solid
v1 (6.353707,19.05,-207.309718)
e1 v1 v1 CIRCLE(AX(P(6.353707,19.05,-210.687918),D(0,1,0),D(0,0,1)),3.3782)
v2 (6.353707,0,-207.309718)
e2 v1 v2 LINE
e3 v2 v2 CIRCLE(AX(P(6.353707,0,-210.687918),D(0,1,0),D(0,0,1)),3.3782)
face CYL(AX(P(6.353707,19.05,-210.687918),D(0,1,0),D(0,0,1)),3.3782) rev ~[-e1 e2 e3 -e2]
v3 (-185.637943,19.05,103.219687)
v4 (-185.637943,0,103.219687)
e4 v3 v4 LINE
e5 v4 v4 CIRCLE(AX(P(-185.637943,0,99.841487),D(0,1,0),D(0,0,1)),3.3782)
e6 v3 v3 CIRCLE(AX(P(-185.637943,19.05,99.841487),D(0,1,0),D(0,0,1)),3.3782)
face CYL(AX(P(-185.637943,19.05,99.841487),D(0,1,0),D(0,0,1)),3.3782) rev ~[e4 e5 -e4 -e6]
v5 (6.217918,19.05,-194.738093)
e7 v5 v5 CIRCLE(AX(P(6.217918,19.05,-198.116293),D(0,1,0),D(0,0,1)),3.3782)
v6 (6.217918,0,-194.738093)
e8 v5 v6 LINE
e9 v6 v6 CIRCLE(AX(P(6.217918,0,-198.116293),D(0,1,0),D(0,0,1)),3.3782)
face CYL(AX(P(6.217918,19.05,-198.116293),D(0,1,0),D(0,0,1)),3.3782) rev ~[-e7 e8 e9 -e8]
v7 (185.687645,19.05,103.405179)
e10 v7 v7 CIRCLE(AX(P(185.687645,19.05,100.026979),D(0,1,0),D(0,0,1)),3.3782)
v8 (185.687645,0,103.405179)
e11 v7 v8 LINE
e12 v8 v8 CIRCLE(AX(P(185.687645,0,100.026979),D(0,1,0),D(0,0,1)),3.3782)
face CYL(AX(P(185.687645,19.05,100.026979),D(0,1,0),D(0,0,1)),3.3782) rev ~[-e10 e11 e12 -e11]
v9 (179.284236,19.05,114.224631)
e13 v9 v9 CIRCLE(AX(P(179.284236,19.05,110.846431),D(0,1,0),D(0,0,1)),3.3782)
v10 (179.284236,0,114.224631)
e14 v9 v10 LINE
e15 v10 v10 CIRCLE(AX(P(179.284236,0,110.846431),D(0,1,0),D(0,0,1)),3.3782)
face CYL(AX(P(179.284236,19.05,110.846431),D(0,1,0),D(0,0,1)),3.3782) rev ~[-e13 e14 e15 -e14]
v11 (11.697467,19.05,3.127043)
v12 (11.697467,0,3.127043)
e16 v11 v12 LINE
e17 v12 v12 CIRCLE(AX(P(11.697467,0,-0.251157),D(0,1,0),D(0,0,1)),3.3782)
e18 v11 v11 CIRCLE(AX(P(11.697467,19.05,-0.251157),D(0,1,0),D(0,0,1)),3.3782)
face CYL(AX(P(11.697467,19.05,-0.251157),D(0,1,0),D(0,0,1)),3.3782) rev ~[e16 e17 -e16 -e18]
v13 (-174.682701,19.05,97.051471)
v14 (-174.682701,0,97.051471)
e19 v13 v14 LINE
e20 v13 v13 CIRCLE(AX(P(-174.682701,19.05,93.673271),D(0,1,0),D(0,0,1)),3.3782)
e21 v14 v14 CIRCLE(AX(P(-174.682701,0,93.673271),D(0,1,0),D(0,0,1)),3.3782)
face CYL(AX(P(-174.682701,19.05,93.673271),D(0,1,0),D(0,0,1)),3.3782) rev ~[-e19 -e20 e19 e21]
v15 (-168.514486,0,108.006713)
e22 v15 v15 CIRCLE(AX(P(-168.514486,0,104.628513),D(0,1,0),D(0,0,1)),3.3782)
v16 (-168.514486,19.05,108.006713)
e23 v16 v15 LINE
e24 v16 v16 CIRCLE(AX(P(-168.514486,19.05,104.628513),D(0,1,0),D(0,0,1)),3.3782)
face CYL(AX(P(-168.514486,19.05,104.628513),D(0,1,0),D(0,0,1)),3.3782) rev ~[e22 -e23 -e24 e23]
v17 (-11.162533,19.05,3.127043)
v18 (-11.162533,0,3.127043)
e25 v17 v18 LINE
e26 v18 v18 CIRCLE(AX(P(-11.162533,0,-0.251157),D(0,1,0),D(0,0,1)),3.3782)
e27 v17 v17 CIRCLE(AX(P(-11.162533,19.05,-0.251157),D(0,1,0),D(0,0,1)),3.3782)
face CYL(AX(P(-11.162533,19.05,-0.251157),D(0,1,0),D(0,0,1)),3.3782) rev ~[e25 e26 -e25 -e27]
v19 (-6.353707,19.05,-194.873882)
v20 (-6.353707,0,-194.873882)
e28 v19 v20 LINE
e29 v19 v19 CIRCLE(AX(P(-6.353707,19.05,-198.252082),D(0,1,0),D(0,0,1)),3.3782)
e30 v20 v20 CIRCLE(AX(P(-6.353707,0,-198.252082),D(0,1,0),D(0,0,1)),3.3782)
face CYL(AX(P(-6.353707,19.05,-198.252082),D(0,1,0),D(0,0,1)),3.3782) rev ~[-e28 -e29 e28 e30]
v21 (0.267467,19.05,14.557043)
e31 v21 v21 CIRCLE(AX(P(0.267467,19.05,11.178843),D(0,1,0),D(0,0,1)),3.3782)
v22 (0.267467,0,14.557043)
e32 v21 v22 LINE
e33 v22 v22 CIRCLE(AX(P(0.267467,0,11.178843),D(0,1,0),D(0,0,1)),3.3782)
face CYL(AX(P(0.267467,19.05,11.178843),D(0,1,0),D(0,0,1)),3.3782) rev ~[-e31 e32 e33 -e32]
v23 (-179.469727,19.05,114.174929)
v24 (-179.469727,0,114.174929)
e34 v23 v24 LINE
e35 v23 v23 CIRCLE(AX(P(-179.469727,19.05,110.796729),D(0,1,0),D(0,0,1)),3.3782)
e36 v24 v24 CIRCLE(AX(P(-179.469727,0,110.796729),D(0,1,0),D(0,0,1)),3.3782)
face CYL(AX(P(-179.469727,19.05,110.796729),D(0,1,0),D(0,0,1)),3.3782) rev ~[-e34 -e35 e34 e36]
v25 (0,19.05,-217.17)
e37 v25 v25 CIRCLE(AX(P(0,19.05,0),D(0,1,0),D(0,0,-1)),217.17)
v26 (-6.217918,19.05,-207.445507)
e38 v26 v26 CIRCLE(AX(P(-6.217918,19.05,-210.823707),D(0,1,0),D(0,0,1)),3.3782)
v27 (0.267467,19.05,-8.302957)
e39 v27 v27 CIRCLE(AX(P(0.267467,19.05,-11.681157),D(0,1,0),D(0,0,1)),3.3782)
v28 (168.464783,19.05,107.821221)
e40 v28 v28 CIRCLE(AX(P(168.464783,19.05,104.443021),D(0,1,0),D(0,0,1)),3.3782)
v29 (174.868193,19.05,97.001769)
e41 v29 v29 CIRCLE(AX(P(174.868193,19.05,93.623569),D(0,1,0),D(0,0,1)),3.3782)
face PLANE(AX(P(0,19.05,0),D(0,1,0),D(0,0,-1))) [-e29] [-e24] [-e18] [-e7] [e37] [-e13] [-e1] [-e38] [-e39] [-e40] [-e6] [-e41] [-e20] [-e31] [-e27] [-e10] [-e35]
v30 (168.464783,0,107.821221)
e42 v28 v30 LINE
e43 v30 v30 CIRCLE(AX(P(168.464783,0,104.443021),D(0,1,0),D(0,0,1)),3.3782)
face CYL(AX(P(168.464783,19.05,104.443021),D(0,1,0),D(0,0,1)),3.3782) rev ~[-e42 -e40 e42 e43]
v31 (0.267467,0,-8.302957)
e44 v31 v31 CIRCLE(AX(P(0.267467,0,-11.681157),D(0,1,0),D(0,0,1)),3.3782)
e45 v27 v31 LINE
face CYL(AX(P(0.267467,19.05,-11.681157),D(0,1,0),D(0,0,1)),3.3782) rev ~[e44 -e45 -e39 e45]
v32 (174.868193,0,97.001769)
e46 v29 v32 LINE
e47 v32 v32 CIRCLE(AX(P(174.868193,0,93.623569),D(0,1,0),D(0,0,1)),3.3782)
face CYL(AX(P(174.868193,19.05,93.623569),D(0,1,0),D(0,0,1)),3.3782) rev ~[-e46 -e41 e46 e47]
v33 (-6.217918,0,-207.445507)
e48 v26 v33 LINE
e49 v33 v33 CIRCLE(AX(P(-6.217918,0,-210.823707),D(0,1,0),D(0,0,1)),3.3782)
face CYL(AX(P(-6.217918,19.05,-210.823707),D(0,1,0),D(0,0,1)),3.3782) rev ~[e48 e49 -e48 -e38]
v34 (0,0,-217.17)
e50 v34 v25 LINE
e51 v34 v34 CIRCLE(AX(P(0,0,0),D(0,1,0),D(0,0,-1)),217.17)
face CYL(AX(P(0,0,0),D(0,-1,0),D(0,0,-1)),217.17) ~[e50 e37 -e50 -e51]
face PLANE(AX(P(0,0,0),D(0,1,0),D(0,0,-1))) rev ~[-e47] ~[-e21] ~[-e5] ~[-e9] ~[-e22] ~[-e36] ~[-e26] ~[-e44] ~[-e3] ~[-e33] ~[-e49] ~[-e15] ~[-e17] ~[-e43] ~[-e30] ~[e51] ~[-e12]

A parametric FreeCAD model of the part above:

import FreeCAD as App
import Part
import Sketcher
Q = App.Units.Quantity

doc = App.newDocument("Part")
params = doc.addObject("Spreadsheet::Sheet", "Params")
for row, (alias, value) in enumerate([
    ("sketch1_diameter", "17.1 in"),
    ("pad1_length", "0.75 in"),
    ("sketch2_diameter", "0.266 in"),
    ("pocket1_length", "0.75 in"),
], start=1):
    params.set(f"A{row}", alias)
    params.set(f"B{row}", "=" + value)
    params.setAlias(f"B{row}", alias)

body = doc.addObject("PartDesign::Body", "Body")

# Sketch on XZ plane
sketch1 = body.newObject("Sketcher::SketchObject", "Sketch")
sketch1.AttachmentSupport = (doc.getObject("XZ_Plane"), [""])
sketch1.MapMode = "FlatFace"
sketch1.addGeometry(Part.Circle(App.Vector(0, 0, 0), App.Vector(0, 0, 1), 217), False)
sketch1.addConstraint(Sketcher.Constraint("Coincident", 0, 3, -1, 1))
sketch1.addConstraint(Sketcher.Constraint("Diameter", 0, Q("17.1 in")))
sketch1.setExpression("Constraints[1]", "Params.sketch1_diameter")
pad1 = body.newObject("PartDesign::Pad", "Pad")
pad1.Profile = sketch1
pad1.setExpression("Length", "Params.pad1_length")
pad1.Reversed = True

# Sketch on XZ plane
sketch2 = body.newObject("Sketcher::SketchObject", "Sketch001")
sketch2.AttachmentSupport = (doc.getObject("XZ_Plane"), [""])
sketch2.MapMode = "FlatFace"
sketch2.AttachmentOffset = App.Placement(App.Vector(0, 0, -0.75 * 25.4), App.Rotation())
sketch2.addGeometry(Part.Circle(App.Vector(-6.2, -210.8, 0), App.Vector(0, 0, 1), 3.4), False)
sketch2.addGeometry(Part.Circle(App.Vector(6.4, -210.7, 0), App.Vector(0, 0, 1), 3.4), False)
sketch2.addGeometry(Part.Circle(App.Vector(6.2, -198.1, 0), App.Vector(0, 0, 1), 3.4), False)
sketch2.addGeometry(Part.Circle(App.Vector(-6.4, -198.3, 0), App.Vector(0, 0, 1), 3.4), False)
sketch2.addGeometry(Part.Circle(App.Vector(185.7, 100, 0), App.Vector(0, 0, 1), 3.4), False)
sketch2.addGeometry(Part.Circle(App.Vector(179.3, 110.8, 0), App.Vector(0, 0, 1), 3.4), False)
sketch2.addGeometry(Part.Circle(App.Vector(0.3, 11.2, 0), App.Vector(0, 0, 1), 3.4), False)
sketch2.addGeometry(Part.Circle(App.Vector(-11.2, -0.3, 0), App.Vector(0, 0, 1), 3.4), False)
sketch2.addGeometry(Part.Circle(App.Vector(0.3, -11.7, 0), App.Vector(0, 0, 1), 3.4), False)
sketch2.addGeometry(Part.Circle(App.Vector(11.7, -0.3, 0), App.Vector(0, 0, 1), 3.4), False)
sketch2.addGeometry(Part.Circle(App.Vector(168.5, 104.4, 0), App.Vector(0, 0, 1), 3.4), False)
sketch2.addGeometry(Part.Circle(App.Vector(174.9, 93.6, 0), App.Vector(0, 0, 1), 3.4), False)
sketch2.addGeometry(Part.Circle(App.Vector(-179.5, 110.8, 0), App.Vector(0, 0, 1), 3.4), False)
sketch2.addGeometry(Part.Circle(App.Vector(-185.6, 99.8, 0), App.Vector(0, 0, 1), 3.4), False)
sketch2.addGeometry(Part.Circle(App.Vector(-174.7, 93.7, 0), App.Vector(0, 0, 1), 3.4), False)
sketch2.addGeometry(Part.Circle(App.Vector(-168.5, 104.6, 0), App.Vector(0, 0, 1), 3.4), False)
sketch2.addConstraint(Sketcher.Constraint("Equal", 0, 1))
sketch2.addConstraint(Sketcher.Constraint("Equal", 1, 2))
sketch2.addConstraint(Sketcher.Constraint("Equal", 2, 3))
sketch2.addConstraint(Sketcher.Constraint("Equal", 3, 4))
sketch2.addConstraint(Sketcher.Constraint("Equal", 4, 5))
sketch2.addConstraint(Sketcher.Constraint("Equal", 5, 6))
sketch2.addConstraint(Sketcher.Constraint("Equal", 6, 7))
sketch2.addConstraint(Sketcher.Constraint("Equal", 7, 8))
sketch2.addConstraint(Sketcher.Constraint("Equal", 8, 9))
sketch2.addConstraint(Sketcher.Constraint("Equal", 9, 10))
sketch2.addConstraint(Sketcher.Constraint("Equal", 10, 11))
sketch2.addConstraint(Sketcher.Constraint("Equal", 11, 12))
sketch2.addConstraint(Sketcher.Constraint("Equal", 12, 13))
sketch2.addConstraint(Sketcher.Constraint("Equal", 13, 14))
sketch2.addConstraint(Sketcher.Constraint("Equal", 14, 15))
sketch2.addConstraint(Sketcher.Constraint("Horizontal", 7, 3, 9, 3))
sketch2.addConstraint(Sketcher.Constraint("Vertical", 6, 3, 8, 3))
sketch2.addConstraint(Sketcher.Constraint("Diameter", 0, Q("0.266 in")))
sketch2.addConstraint(Sketcher.Constraint("DistanceY", 8, 3, 6, 3, Q("0.9 in")))
sketch2.addConstraint(Sketcher.Constraint("DistanceX", 7, 3, 9, 3, Q("0.9 in")))
sketch2.addConstraint(Sketcher.Constraint("DistanceX", 7, 3, 6, 3, Q("0.45 in")))
sketch2.addConstraint(Sketcher.Constraint("DistanceY", 7, 3, 6, 3, Q("0.45 in")))
sketch2.addConstraint(Sketcher.Constraint("DistanceX", 0, 3, -1, 1, Q("0.2447999 in")))
sketch2.addConstraint(Sketcher.Constraint("DistanceY", 1, 3, -1, 1, Q("8.2947999 in")))
sketch2.addConstraint(Sketcher.Constraint("DistanceX", -1, 1, 2, 3, Q("0.2447999 in")))
sketch2.addConstraint(Sketcher.Constraint("DistanceY", 3, 3, -1, 1, Q("7.8052001 in")))
sketch2.addConstraint(Sketcher.Constraint("DistanceX", 14, 3, -1, 1, 174.682701))
sketch2.addConstraint(Sketcher.Constraint("DistanceY", -1, 1, 4, 3, 100.026979))
sketch2.addConstraint(Sketcher.Constraint("DistanceY", -1, 1, 5, 3, 110.846431))
sketch2.addConstraint(Sketcher.Constraint("DistanceY", -1, 1, 10, 3, 104.443021))
sketch2.addConstraint(Sketcher.Constraint("DistanceY", -1, 1, 11, 3, 93.623569))
sketch2.addConstraint(Sketcher.Constraint("DistanceY", -1, 1, 12, 3, 110.796729))
sketch2.addConstraint(Sketcher.Constraint("DistanceY", -1, 1, 14, 3, 93.673271))
sketch2.addConstraint(Sketcher.Constraint("DistanceY", 0, 3, 1, 3, 0.135789))
sketch2.addConstraint(Sketcher.Constraint("DistanceX", 2, 3, 1, 3, 0.135789))
sketch2.addConstraint(Sketcher.Constraint("DistanceY", 3, 3, 2, 3, 0.135789))
sketch2.addConstraint(Sketcher.Constraint("DistanceX", 3, 3, 0, 3, 0.135789))
sketch2.addConstraint(Sketcher.Constraint("DistanceX", 5, 3, 4, 3, 6.40341))
sketch2.addConstraint(Sketcher.Constraint("DistanceX", 1, 3, 5, 3, 172.930528))
sketch2.addConstraint(Sketcher.Constraint("DistanceX", 6, 3, 5, 3, 179.016769))
sketch2.addConstraint(Sketcher.Constraint("DistanceY", 1, 3, 6, 3, 221.866761))
sketch2.addConstraint(Sketcher.Constraint("DistanceX", 10, 3, 4, 3, 17.222862))
sketch2.addConstraint(Sketcher.Constraint("DistanceX", 10, 3, 11, 3, 6.40341))
sketch2.addConstraint(Sketcher.Constraint("DistanceX", 12, 3, 10, 3, 347.934511))
sketch2.addConstraint(Sketcher.Constraint("DistanceY", 13, 3, 12, 3, 10.955241))
sketch2.addConstraint(Sketcher.Constraint("DistanceX", 13, 3, 7, 3, 174.475409))
sketch2.addConstraint(Sketcher.Constraint("DistanceY", 14, 3, 15, 3, 10.955241))
sketch2.addConstraint(Sketcher.Constraint("DistanceX", 12, 3, 15, 3, 10.955241))
sketch2.setExpression("Constraints[17]", "Params.sketch2_diameter")
pocket1 = body.newObject("PartDesign::Pocket", "Pocket")
pocket1.Profile = sketch2
pocket1.setExpression("Length", "Params.pocket1_length")
pocket1.Reversed = True

doc.recompute()
